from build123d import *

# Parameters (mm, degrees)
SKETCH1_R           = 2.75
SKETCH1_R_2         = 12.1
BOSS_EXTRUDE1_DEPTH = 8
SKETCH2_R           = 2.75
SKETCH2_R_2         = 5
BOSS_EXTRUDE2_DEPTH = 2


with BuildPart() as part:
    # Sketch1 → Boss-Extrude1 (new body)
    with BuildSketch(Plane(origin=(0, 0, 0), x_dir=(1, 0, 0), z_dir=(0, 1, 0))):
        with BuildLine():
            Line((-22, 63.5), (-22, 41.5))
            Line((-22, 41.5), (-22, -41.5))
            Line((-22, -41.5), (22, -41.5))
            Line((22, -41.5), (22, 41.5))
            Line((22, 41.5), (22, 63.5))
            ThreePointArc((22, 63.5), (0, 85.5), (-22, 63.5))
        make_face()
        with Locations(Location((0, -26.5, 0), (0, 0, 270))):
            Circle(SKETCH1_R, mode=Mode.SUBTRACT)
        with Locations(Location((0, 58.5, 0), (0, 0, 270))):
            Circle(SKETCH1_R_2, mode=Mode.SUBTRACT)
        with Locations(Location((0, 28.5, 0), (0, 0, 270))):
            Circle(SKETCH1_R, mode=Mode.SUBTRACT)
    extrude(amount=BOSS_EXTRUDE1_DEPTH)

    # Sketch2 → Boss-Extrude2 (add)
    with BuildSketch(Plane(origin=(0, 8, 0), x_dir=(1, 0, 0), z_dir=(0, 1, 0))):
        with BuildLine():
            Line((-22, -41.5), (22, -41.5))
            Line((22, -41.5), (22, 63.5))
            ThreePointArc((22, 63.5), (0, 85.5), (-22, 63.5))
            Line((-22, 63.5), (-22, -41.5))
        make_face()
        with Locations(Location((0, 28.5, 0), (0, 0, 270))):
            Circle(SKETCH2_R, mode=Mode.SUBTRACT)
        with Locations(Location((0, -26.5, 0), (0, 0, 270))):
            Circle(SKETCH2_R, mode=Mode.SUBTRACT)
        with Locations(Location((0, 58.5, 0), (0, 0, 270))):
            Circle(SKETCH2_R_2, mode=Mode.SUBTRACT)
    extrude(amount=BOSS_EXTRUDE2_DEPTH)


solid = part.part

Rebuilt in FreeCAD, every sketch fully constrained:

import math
import FreeCAD as App
import Part
import Sketcher

V = App.Vector
Q = App.Units.Quantity

doc = App.newDocument("Part")
body = doc.addObject("PartDesign::Body", "Body")

# Sketch on XZ plane
sketch1 = doc.addObject("Sketcher::SketchObject", "Sketch")
body.addObject(sketch1)
sketch1.AttachmentSupport = (doc.XZ_Plane, [""])
sketch1.MapMode = "FlatFace"
sketch1.addGeometry([
    Part.LineSegment(V(-22, -63.5, 0), V(-22, 41.5, 0)),  # 0
    Part.LineSegment(V(-22, 41.5, 0), V(22, 41.5, 0)),  # 1
    Part.LineSegment(V(22, 41.5, 0), V(22, -63.5, 0)),  # 2
    Part.ArcOfCircle(Part.Circle(V(0, -63.5, 0), V(0, 0, 1), 22), math.radians(180), math.radians(360)),  # 3
    Part.Circle(V(0, 26.5, 0), V(0, 0, 1), 2.8),  # 4
    Part.Circle(V(0, -28.5, 0), V(0, 0, 1), 2.8),  # 5
    Part.Circle(V(0, -58.5, 0), V(0, 0, 1), 12.1),  # 6
], False)
sketch1.addConstraint([
    Sketcher.Constraint("Coincident", 0, 2, 1, 1),
    Sketcher.Constraint("Coincident", 1, 2, 2, 1),
    Sketcher.Constraint("Tangent", 2, 2, 3, 2),
    Sketcher.Constraint("Tangent", 3, 1, 0, 1),
    Sketcher.Constraint("Vertical", 0),
    Sketcher.Constraint("Horizontal", 1),
    Sketcher.Constraint("Vertical", 2),
    Sketcher.Constraint("Equal", 4, 5),
    Sketcher.Constraint("PointOnObject", 3, 3, -2),
    Sketcher.Constraint("PointOnObject", 4, 3, -2),
    Sketcher.Constraint("PointOnObject", 5, 3, -2),
    Sketcher.Constraint("PointOnObject", 6, 3, -2),
    Sketcher.Constraint("Radius", 3, Q("22 mm")),
    Sketcher.Constraint("Diameter", 4, Q("5.5 mm")),
    Sketcher.Constraint("Diameter", 6, Q("24.2 mm")),
    Sketcher.Constraint("DistanceY", 0, 1, 0, 2, Q("105 mm")),
    Sketcher.Constraint("DistanceY", 3, 3, 4, 3, Q("90 mm")),
    Sketcher.Constraint("DistanceY", 3, 3, 5, 3, Q("35 mm")),
    Sketcher.Constraint("DistanceY", 3, 3, 6, 3, Q("5 mm")),
    Sketcher.Constraint("DistanceY", 3, 3, -1, 1, Q("63.5 mm")),
])
pad1 = doc.addObject("PartDesign::Pad", "Pad")
body.addObject(pad1)
pad1.Profile = sketch1
pad1.Length = 8
pad1.Reversed = True

# Sketch on XZ plane
sketch2 = doc.addObject("Sketcher::SketchObject", "Sketch001")
body.addObject(sketch2)
sketch2.AttachmentSupport = (doc.XZ_Plane, [""])
sketch2.MapMode = "FlatFace"
sketch2.AttachmentOffset = App.Placement(V(0, 0, -8), App.Rotation())
sketch2.addGeometry([
    Part.LineSegment(V(-22, 41.5, 0), V(22, 41.5, 0)),  # 0
    Part.LineSegment(V(22, 41.5, 0), V(22, -63.5, 0)),  # 1
    Part.ArcOfCircle(Part.Circle(V(0, -63.5, 0), V(0, 0, 1), 22), math.radians(180), math.radians(360)),  # 2
    Part.LineSegment(V(-22, -63.5, 0), V(-22, 41.5, 0)),  # 3
    Part.Circle(V(0, 26.5, 0), V(0, 0, 1), 2.8),  # 4
    Part.Circle(V(0, -28.5, 0), V(0, 0, 1), 2.8),  # 5
    Part.Circle(V(0, -58.5, 0), V(0, 0, 1), 5),  # 6
], False)
sketch2.addConstraint([
    Sketcher.Constraint("Coincident", 0, 2, 1, 1),
    Sketcher.Constraint("Tangent", 1, 2, 2, 2),
    Sketcher.Constraint("Tangent", 2, 1, 3, 1),
    Sketcher.Constraint("Coincident", 3, 2, 0, 1),
    Sketcher.Constraint("Horizontal", 0),
    Sketcher.Constraint("Vertical", 1),
    Sketcher.Constraint("Vertical", 3),
    Sketcher.Constraint("Equal", 4, 5),
    Sketcher.Constraint("PointOnObject", 2, 3, -2),
    Sketcher.Constraint("PointOnObject", 4, 3, -2),
    Sketcher.Constraint("PointOnObject", 5, 3, -2),
    Sketcher.Constraint("PointOnObject", 6, 3, -2),
    Sketcher.Constraint("Diameter", 6, Q("10 mm")),
    Sketcher.Constraint("Radius", 2, Q("22 mm")),
    Sketcher.Constraint("Diameter", 4, Q("5.5 mm")),
    Sketcher.Constraint("DistanceY", 1, 2, 1, 1, Q("105 mm")),
    Sketcher.Constraint("DistanceY", 2, 3, 4, 3, Q("90 mm")),
    Sketcher.Constraint("DistanceY", 2, 3, 5, 3, Q("35 mm")),
    Sketcher.Constraint("DistanceY", 2, 3, 6, 3, Q("5 mm")),
    Sketcher.Constraint("DistanceY", 2, 3, -1, 1, Q("63.5 mm")),
])
pad2 = doc.addObject("PartDesign::Pad", "Pad001")
body.addObject(pad2)
pad2.Profile = sketch2
pad2.Length = 2
pad2.Reversed = True

doc.recompute()
